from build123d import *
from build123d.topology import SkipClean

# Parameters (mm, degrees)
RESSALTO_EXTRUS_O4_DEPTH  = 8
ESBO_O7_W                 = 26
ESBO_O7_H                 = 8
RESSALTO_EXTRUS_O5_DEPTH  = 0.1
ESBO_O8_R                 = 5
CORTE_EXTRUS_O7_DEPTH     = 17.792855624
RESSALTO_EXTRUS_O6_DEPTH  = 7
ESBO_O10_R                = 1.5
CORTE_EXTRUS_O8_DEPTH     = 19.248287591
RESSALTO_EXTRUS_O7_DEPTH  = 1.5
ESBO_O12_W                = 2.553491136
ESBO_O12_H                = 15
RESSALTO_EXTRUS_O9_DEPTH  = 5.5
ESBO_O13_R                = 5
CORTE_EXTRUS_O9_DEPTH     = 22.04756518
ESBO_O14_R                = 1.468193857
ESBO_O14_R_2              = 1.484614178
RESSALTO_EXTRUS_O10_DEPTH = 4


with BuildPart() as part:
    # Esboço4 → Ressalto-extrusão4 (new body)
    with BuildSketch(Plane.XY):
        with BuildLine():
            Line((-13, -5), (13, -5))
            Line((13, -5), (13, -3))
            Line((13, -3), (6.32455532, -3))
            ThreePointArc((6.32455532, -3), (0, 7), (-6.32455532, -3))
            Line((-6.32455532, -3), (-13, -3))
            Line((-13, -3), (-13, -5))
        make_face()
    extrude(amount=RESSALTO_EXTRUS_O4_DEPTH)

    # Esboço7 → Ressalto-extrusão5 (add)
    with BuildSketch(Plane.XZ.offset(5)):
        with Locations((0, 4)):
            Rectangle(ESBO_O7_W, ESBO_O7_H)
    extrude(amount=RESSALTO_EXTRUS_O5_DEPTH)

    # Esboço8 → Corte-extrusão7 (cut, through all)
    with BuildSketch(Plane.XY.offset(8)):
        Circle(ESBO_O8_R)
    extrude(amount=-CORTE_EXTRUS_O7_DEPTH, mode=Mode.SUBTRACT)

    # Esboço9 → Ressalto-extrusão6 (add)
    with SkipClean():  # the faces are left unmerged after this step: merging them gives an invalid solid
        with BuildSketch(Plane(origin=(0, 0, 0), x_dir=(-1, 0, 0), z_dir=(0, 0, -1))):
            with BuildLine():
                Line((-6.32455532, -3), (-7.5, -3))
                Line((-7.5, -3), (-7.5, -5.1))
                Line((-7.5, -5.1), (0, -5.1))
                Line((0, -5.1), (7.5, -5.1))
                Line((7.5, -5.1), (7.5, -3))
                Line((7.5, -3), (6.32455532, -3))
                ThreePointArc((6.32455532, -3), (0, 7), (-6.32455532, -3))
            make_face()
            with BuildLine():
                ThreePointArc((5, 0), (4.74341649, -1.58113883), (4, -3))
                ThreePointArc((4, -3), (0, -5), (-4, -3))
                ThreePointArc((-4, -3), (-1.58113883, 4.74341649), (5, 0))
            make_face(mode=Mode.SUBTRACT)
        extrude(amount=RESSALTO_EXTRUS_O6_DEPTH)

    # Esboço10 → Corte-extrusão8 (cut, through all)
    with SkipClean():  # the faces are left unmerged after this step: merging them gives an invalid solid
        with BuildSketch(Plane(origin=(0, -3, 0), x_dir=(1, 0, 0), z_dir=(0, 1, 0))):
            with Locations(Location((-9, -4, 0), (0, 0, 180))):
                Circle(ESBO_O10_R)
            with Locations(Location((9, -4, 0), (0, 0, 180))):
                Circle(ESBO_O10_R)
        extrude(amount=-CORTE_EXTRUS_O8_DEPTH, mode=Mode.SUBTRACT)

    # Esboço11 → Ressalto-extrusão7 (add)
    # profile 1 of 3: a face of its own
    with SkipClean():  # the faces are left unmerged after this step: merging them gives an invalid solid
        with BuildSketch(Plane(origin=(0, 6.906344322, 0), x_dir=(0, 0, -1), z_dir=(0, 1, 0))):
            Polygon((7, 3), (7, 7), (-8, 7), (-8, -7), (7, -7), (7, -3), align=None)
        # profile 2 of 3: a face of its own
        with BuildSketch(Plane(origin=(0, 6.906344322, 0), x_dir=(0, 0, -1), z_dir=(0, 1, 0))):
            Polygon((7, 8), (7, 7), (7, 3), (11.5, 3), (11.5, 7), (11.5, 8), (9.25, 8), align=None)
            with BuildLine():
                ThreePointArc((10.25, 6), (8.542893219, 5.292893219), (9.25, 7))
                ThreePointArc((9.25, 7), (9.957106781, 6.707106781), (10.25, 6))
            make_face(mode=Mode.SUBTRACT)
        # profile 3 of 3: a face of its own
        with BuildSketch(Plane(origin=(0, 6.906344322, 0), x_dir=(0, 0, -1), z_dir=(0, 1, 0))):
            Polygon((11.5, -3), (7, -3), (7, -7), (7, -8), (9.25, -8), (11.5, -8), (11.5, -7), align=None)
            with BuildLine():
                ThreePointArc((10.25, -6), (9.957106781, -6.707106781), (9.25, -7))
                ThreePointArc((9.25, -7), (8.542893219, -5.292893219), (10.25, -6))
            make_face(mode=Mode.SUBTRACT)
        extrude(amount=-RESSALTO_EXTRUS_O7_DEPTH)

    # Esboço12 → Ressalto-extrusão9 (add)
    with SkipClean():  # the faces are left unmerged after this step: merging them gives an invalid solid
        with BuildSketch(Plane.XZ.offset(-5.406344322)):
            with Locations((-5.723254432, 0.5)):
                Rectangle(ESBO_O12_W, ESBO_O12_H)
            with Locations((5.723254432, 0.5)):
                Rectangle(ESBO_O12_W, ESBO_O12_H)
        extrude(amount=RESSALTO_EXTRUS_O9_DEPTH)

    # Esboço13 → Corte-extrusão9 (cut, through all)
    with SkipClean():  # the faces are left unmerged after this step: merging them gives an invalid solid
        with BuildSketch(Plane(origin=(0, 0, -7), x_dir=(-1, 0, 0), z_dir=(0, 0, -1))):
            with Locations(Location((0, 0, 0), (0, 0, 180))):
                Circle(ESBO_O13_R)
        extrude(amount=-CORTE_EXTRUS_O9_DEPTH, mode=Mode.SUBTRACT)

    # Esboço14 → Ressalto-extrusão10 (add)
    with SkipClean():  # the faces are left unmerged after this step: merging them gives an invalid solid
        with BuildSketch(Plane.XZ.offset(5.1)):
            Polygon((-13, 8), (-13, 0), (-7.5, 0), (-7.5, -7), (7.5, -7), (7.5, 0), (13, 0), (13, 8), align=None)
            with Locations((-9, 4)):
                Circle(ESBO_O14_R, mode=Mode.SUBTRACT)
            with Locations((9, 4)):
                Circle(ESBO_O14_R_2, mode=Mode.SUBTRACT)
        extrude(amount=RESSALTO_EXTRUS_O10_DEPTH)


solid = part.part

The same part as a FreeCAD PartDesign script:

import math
import FreeCAD as App
import Part
import Sketcher

V = App.Vector
Q = App.Units.Quantity


def add_polygon(sketch, points):
    """Adds a closed chain of lines whose ends are joined by coincident constraints."""
    first, n = sketch.GeometryCount, len(points)
    for a, b in zip(points, points[1:] + points[:1]):
        sketch.addGeometry(Part.LineSegment(App.Vector(*a, 0), App.Vector(*b, 0)), False)
    for i in range(n):
        sketch.addConstraint(Sketcher.Constraint("Coincident", first + i, 2, first + (i + 1) % n, 1))

doc = App.newDocument("Part")
body = doc.addObject("PartDesign::Body", "Body")

sketch1 = doc.addObject("Sketcher::SketchObject", "Sketch")
body.addObject(sketch1)
sketch1.AttachmentSupport = (doc.XY_Plane, [""])
sketch1.MapMode = "FlatFace"
sketch1.addGeometry([
    Part.LineSegment(V(-13, -5, 0), V(13, -5, 0)),
    Part.LineSegment(V(13, -5, 0), V(13, -3, 0)),
    Part.LineSegment(V(13, -3, 0), V(6.3, -3, 0)),
    Part.ArcOfCircle(Part.Circle(V(0, 0, 0), V(0, 0, 1), 7), math.radians(-25), math.radians(205)),
    Part.LineSegment(V(-6.3, -3, 0), V(-13, -3, 0)),
    Part.LineSegment(V(-13, -3, 0), V(-13, -5, 0)),
], False)
sketch1.addConstraint([
    Sketcher.Constraint("Coincident", 0, 2, 1, 1),
    Sketcher.Constraint("Coincident", 1, 2, 2, 1),
    Sketcher.Constraint("Coincident", 2, 2, 3, 1),
    Sketcher.Constraint("Coincident", 3, 2, 4, 1),
    Sketcher.Constraint("Coincident", 4, 2, 5, 1),
    Sketcher.Constraint("Coincident", 5, 2, 0, 1),
    Sketcher.Constraint("Horizontal", 0),
    Sketcher.Constraint("Vertical", 1),
    Sketcher.Constraint("Horizontal", 2),
    Sketcher.Constraint("Horizontal", 4),
    Sketcher.Constraint("Vertical", 5),
    Sketcher.Constraint("Coincident", 3, 3, -1, 1),
    Sketcher.Constraint("Symmetric", 1, 2, 4, 2, -2),
    Sketcher.Constraint("Radius", 3, Q("7 mm")),
    Sketcher.Constraint("DistanceX", 0, 1, 0, 2, Q("26 mm")),
    Sketcher.Constraint("DistanceY", 1, 1, 1, 2, Q("2 mm")),
    Sketcher.Constraint("DistanceY", 0, 2, -1, 1, Q("5 mm")),
])
pad1 = doc.addObject("PartDesign::Pad", "Pad")
body.addObject(pad1)
pad1.Profile = sketch1
pad1.Length = 8

sketch2 = doc.addObject("Sketcher::SketchObject", "Sketch001")
body.addObject(sketch2)
sketch2.AttachmentSupport = (doc.XZ_Plane, [""])
sketch2.MapMode = "FlatFace"
sketch2.AttachmentOffset = App.Placement(V(0, 0, 5), App.Rotation())
add_polygon(sketch2, [(-13, 8), (-13, 0), (13, 0), (13, 8)])
sketch2.addConstraint([
    Sketcher.Constraint("Vertical", 0),
    Sketcher.Constraint("Horizontal", 1),
    Sketcher.Constraint("Vertical", 2),
    Sketcher.Constraint("Horizontal", 3),
    Sketcher.Constraint("Symmetric", 0, 2, 1, 2, -1, 1),
    Sketcher.Constraint("DistanceX", 1, 1, 1, 2, Q("26 mm")),
    Sketcher.Constraint("DistanceY", 0, 2, 0, 1, Q("8 mm")),
])
pad2 = doc.addObject("PartDesign::Pad", "Pad001")
body.addObject(pad2)
pad2.Profile = sketch2
pad2.Length = 0.1

sketch3 = doc.addObject("Sketcher::SketchObject", "Sketch002")
body.addObject(sketch3)
sketch3.AttachmentSupport = (doc.XY_Plane, [""])
sketch3.MapMode = "FlatFace"
sketch3.AttachmentOffset = App.Placement(V(0, 0, 8), App.Rotation())
sketch3.addGeometry(Part.Circle(V(0, 0, 0), V(0, 0, 1), 5), False)
sketch3.addConstraint([
    Sketcher.Constraint("Coincident", 0, 3, -1, 1),
    Sketcher.Constraint("Diameter", 0, Q("10 mm")),
])
pocket1 = doc.addObject("PartDesign::Pocket", "Pocket")
body.addObject(pocket1)
pocket1.Profile = sketch3
pocket1.Type = "ThroughAll"

sketch4 = doc.addObject("Sketcher::SketchObject", "Sketch003")
body.addObject(sketch4)
sketch4.AttachmentSupport = (doc.XY_Plane, [""])
sketch4.MapMode = "FlatFace"
sketch4.addGeometry([
    Part.LineSegment(V(6.3, -3, 0), V(7.5, -3, 0)),
    Part.LineSegment(V(7.5, -3, 0), V(7.5, -5.1, 0)),
    Part.LineSegment(V(7.5, -5.1, 0), V(-7.5, -5.1, 0)),
    Part.LineSegment(V(-7.5, -5.1, 0), V(-7.5, -3, 0)),
    Part.LineSegment(V(-7.5, -3, 0), V(-6.3, -3, 0)),
    Part.ArcOfCircle(Part.Circle(V(0, 0, 0), V(0, 0, 1), 7), math.radians(-25), math.radians(205)),
    Part.ArcOfCircle(Part.Circle(V(0, 0, 0), V(0, 0, 1), 5), math.radians(-37), math.radians(180)),
    Part.ArcOfCircle(Part.Circle(V(0, 0, 0), V(0, 0, 1), 5), math.radians(-180), math.radians(-143)),
    Part.ArcOfCircle(Part.Circle(V(0, 0, 0), V(0, 0, 1), 5), math.radians(-143), math.radians(-37)),
], False)
sketch4.addConstraint([
    Sketcher.Constraint("Coincident", 0, 2, 1, 1),
    Sketcher.Constraint("Coincident", 1, 2, 2, 1),
    Sketcher.Constraint("Coincident", 2, 2, 3, 1),
    Sketcher.Constraint("Coincident", 3, 2, 4, 1),
    Sketcher.Constraint("Coincident", 4, 2, 5, 2),
    Sketcher.Constraint("Coincident", 5, 1, 0, 1),
    Sketcher.Constraint("Tangent", 6, 2, 7, 1),
    Sketcher.Constraint("Tangent", 7, 2, 8, 1),
    Sketcher.Constraint("Tangent", 8, 2, 6, 1),
    Sketcher.Constraint("Horizontal", 0),
    Sketcher.Constraint("Vertical", 1),
    Sketcher.Constraint("Horizontal", 2),
    Sketcher.Constraint("Vertical", 3),
    Sketcher.Constraint("Horizontal", 4),
    Sketcher.Constraint("Coincident", 5, 3, -1, 1),
    Sketcher.Constraint("Coincident", 6, 3, -1, 1),
    Sketcher.Constraint("Symmetric", 0, 2, 3, 2, -2),
    Sketcher.Constraint("PointOnObject", 6, 2, -1),
    Sketcher.Constraint("Horizontal", 5, 1, 7, 2),
    Sketcher.Constraint("Horizontal", 7, 2, 8, 2),
    Sketcher.Constraint("Radius", 5, Q("7 mm")),
    Sketcher.Constraint("Radius", 6, Q("5 mm")),
    Sketcher.Constraint("DistanceX", 2, 2, 2, 1, Q("15 mm")),
    Sketcher.Constraint("DistanceY", 1, 2, 1, 1, Q("2.1 mm")),
    Sketcher.Constraint("DistanceY", 0, 2, -1, 1, Q("3 mm")),
])
pad3 = doc.addObject("PartDesign::Pad", "Pad002")
body.addObject(pad3)
pad3.Profile = sketch4
pad3.Length = 7
pad3.Reversed = True

sketch5 = doc.addObject("Sketcher::SketchObject", "Sketch004")
body.addObject(sketch5)
sketch5.AttachmentSupport = (doc.XZ_Plane, [""])
sketch5.MapMode = "FlatFace"
sketch5.AttachmentOffset = App.Placement(V(0, 0, 3), App.Rotation())
sketch5.addGeometry([
    Part.Circle(V(-9, 4, 0), V(0, 0, 1), 1.5),
    Part.Circle(V(9, 4, 0), V(0, 0, 1), 1.5),
], False)
sketch5.addConstraint([
    Sketcher.Constraint("Equal", 0, 1),
    Sketcher.Constraint("Symmetric", 0, 3, 1, 3, -2),
    Sketcher.Constraint("Diameter", 0, Q("3 mm")),
    Sketcher.Constraint("DistanceX", 0, 3, -1, 1, Q("9 mm")),
    Sketcher.Constraint("DistanceY", -1, 1, 0, 3, Q("4 mm")),
])
pocket2 = doc.addObject("PartDesign::Pocket", "Pocket001")
body.addObject(pocket2)
pocket2.Profile = sketch5
pocket2.Type = "ThroughAll"
pocket2.Reversed = True

sketch6 = doc.addObject("Sketcher::SketchObject", "Sketch005")
body.addObject(sketch6)
sketch6.AttachmentSupport = (doc.XZ_Plane, [""])
sketch6.MapMode = "FlatFace"
sketch6.AttachmentOffset = App.Placement(V(0, 0, -6.906344), App.Rotation())
add_polygon(sketch6, [(-7, -7), (-7, 8), (7, 8), (7, -7), (8, -7), (8, -11.5), (3, -11.5), (3, -7), (-3, -7), (-3, -11.5), (-8, -11.5), (-8, -7)])
sketch6.addGeometry(Part.ArcOfCircle(Part.Circle(V(6, -9.2, 0), V(0, 0, 1), 1), math.radians(-90), math.radians(0)), False)
sketch6.addGeometry(Part.ArcOfCircle(Part.Circle(V(6, -9.2, 0), V(0, 0, 1), 1), math.radians(0), math.radians(270)), False)
sketch6.addGeometry(Part.ArcOfCircle(Part.Circle(V(-6, -9.2, 0), V(0, 0, 1), 1), math.radians(-90), math.radians(180)), False)
sketch6.addGeometry(Part.ArcOfCircle(Part.Circle(V(-6, -9.2, 0), V(0, 0, 1), 1), math.radians(-180), math.radians(-90)), False)
sketch6.addConstraint([
    Sketcher.Constraint("Tangent", 12, 1, 13, 2),
    Sketcher.Constraint("Coincident", 13, 1, 12, 2),
    Sketcher.Constraint("Tangent", 14, 1, 15, 2),
    Sketcher.Constraint("Coincident", 15, 1, 14, 2),
    Sketcher.Constraint("Vertical", 0),
    Sketcher.Constraint("Horizontal", 1),
    Sketcher.Constraint("Vertical", 2),
    Sketcher.Constraint("Horizontal", 3),
    Sketcher.Constraint("Vertical", 4),
    Sketcher.Constraint("Horizontal", 5),
    Sketcher.Constraint("Vertical", 6),
    Sketcher.Constraint("Horizontal", 7),
    Sketcher.Constraint("Vertical", 8),
    Sketcher.Constraint("Horizontal", 9),
    Sketcher.Constraint("Vertical", 10),
    Sketcher.Constraint("Horizontal", 11),
    Sketcher.Constraint("Equal", 13, 14),
    Sketcher.Constraint("Symmetric", 12, 3, 14, 3, -2),
    Sketcher.Constraint("Symmetric", 5, 2, 8, 2, -2),
    Sketcher.Constraint("Symmetric", 3, 2, 10, 2, -2),
    Sketcher.Constraint("Horizontal", 3, 2, 6, 2),
    Sketcher.Constraint("Horizontal", 15, 3, 13, 1),
    Sketcher.Constraint("Horizontal", 13, 1, 15, 1),
    Sketcher.Constraint("Vertical", 13, 3, 12, 1),
    Sketcher.Constraint("Vertical", 2, 2, 13, 1),
    Sketcher.Constraint("Vertical", 15, 3, 14, 1),
    Sketcher.Constraint("Vertical", 11, 2, 15, 1),
    Sketcher.Constraint("Radius", 12, Q("1 mm")),
    Sketcher.Constraint("DistanceX", 1, 1, 1, 2, Q("14 mm")),
    Sketcher.Constraint("DistanceX", 3, 1, 3, 2, Q("1 mm")),
    Sketcher.Constraint("DistanceX", 5, 2, 5, 1, Q("5 mm")),
    Sketcher.Constraint("DistanceY", 0, 1, 0, 2, Q("15 mm")),
    Sketcher.Constraint("DistanceY", 4, 2, 4, 1, Q("4.5 mm")),
    Sketcher.Constraint("DistanceY", -1, 1, 0, 2, Q("8 mm")),
    Sketcher.Constraint("DistanceY", 12, 3, -1, 1, Q("9.25 mm")),
])
pad4 = doc.addObject("PartDesign::Pad", "Pad003")
body.addObject(pad4)
pad4.Profile = sketch6
pad4.Length = 1.5

sketch7 = doc.addObject("Sketcher::SketchObject", "Sketch006")
body.addObject(sketch7)
sketch7.AttachmentSupport = (doc.XZ_Plane, [""])
sketch7.MapMode = "FlatFace"
sketch7.AttachmentOffset = App.Placement(V(0, 0, -5.406344), App.Rotation())
add_polygon(sketch7, [(-7, 8), (-7, -7), (-4.4, -7), (-4.4, 8)])
add_polygon(sketch7, [(4.4, 8), (4.4, -7), (7, -7), (7, 8)])
sketch7.addConstraint([
    Sketcher.Constraint("Vertical", 0),
    Sketcher.Constraint("Horizontal", 1),
    Sketcher.Constraint("Vertical", 2),
    Sketcher.Constraint("Horizontal", 3),
    Sketcher.Constraint("Vertical", 4),
    Sketcher.Constraint("Horizontal", 5),
    Sketcher.Constraint("Vertical", 6),
    Sketcher.Constraint("Horizontal", 7),
    Sketcher.Constraint("Symmetric", 1, 2, 4, 2, -2),
    Sketcher.Constraint("Symmetric", 3, 2, 6, 2, -2),
    Sketcher.Constraint("DistanceY", 0, 2, 0, 1, Q("15 mm")),
    Sketcher.Constraint("DistanceX", 0, 2, -1, 1, Q("7 mm")),
    Sketcher.Constraint("DistanceY", 0, 2, -1, 1, Q("7 mm")),
    Sketcher.Constraint("DistanceX", 1, 1, 1, 2, Q("2.553491 mm")),
])
pad5 = doc.addObject("PartDesign::Pad", "Pad004")
body.addObject(pad5)
pad5.Profile = sketch7
pad5.Length = 5.5

sketch8 = doc.addObject("Sketcher::SketchObject", "Sketch007")
body.addObject(sketch8)
sketch8.AttachmentSupport = (doc.XY_Plane, [""])
sketch8.MapMode = "FlatFace"
sketch8.AttachmentOffset = App.Placement(V(0, 0, -7), App.Rotation())
sketch8.addGeometry(Part.Circle(V(0, 0, 0), V(0, 0, 1), 5), False)
sketch8.addConstraint([
    Sketcher.Constraint("Coincident", 0, 3, -1, 1),
    Sketcher.Constraint("Diameter", 0, Q("10 mm")),
])
pocket3 = doc.addObject("PartDesign::Pocket", "Pocket002")
body.addObject(pocket3)
pocket3.Profile = sketch8
pocket3.Type = "ThroughAll"
pocket3.Reversed = True

sketch9 = doc.addObject("Sketcher::SketchObject", "Sketch008")
body.addObject(sketch9)
sketch9.AttachmentSupport = (doc.XZ_Plane, [""])
sketch9.MapMode = "FlatFace"
sketch9.AttachmentOffset = App.Placement(V(0, 0, 5.1), App.Rotation())
add_polygon(sketch9, [(-13, 8), (-13, 0), (-7.5, 0), (-7.5, -7), (7.5, -7), (7.5, 0), (13, 0), (13, 8)])
sketch9.addGeometry(Part.Circle(V(9, 4, 0), V(0, 0, 1), 1.5), False)
sketch9.addGeometry(Part.Circle(V(-9, 4, 0), V(0, 0, 1), 1.5), False)
sketch9.addConstraint([
    Sketcher.Constraint("Vertical", 0),
    Sketcher.Constraint("Horizontal", 1),
    Sketcher.Constraint("Vertical", 2),
    Sketcher.Constraint("Horizontal", 3),
    Sketcher.Constraint("Vertical", 4),
    Sketcher.Constraint("Horizontal", 5),
    Sketcher.Constraint("Vertical", 6),
    Sketcher.Constraint("Horizontal", 7),
    Sketcher.Constraint("Symmetric", 1, 2, 4, 2, -1, 1),
    Sketcher.Constraint("Symmetric", 8, 3, 9, 3, -2),
    Sketcher.Constraint("Symmetric", 0, 2, 5, 2, -2),
    Sketcher.Constraint("DistanceX", 3, 1, 3, 2, Q("15 mm")),
    Sketcher.Constraint("DistanceX", 7, 2, 7, 1, Q("26 mm")),
    Sketcher.Constraint("DistanceY", 0, 2, 0, 1, Q("8 mm")),
    Sketcher.Constraint("DistanceY", 2, 2, 2, 1, Q("7 mm")),
    Sketcher.Constraint("DistanceX", -1, 1, 8, 3, Q("9 mm")),
    Sketcher.Constraint("DistanceY", -1, 1, 8, 3, Q("4 mm")),
    Sketcher.Constraint("Diameter", 8, Q("2.969228 mm")),
    Sketcher.Constraint("Diameter", 9, Q("2.936388 mm")),
])
pad6 = doc.addObject("PartDesign::Pad", "Pad005")
body.addObject(pad6)
pad6.Profile = sketch9
pad6.Length = 4

doc.recompute()
